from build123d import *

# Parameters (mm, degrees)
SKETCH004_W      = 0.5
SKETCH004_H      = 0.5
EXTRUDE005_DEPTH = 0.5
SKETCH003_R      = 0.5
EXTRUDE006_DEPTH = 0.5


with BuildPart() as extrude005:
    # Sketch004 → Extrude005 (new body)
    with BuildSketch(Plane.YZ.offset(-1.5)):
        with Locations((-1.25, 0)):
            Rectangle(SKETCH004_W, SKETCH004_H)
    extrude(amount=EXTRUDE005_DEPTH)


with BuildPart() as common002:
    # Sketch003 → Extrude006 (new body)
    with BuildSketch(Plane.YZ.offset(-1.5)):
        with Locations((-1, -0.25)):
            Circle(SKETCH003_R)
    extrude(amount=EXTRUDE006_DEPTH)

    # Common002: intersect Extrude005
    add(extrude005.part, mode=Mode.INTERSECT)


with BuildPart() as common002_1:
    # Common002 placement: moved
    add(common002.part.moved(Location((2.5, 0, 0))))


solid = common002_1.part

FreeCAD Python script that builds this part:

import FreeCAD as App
import Part
import Sketcher


def add_polygon(sketch, points):
    """Adds a closed chain of lines whose ends are joined by coincident constraints."""
    first, n = sketch.GeometryCount, len(points)
    for a, b in zip(points, points[1:] + points[:1]):
        sketch.addGeometry(Part.LineSegment(App.Vector(*a, 0), App.Vector(*b, 0)), False)
    for i in range(n):
        sketch.addConstraint(Sketcher.Constraint("Coincident", first + i, 2, first + (i + 1) % n, 1))

doc = App.newDocument("Part")
body = doc.addObject("PartDesign::Body", "Body")

# Sketch on YZ plane
sketch1 = doc.addObject("Sketcher::SketchObject", "Sketch")
body.addObject(sketch1)
sketch1.AttachmentSupport = (doc.YZ_Plane, [""])
sketch1.MapMode = "FlatFace"
sketch1.AttachmentOffset = App.Placement(App.Vector(0, 0, -1.5), App.Rotation())
add_polygon(sketch1, [(-1.5, 0.25), (-1.5, -0.25), (-1, -0.25), (-1, 0.25)])  # lines 0-3
sketch1.addConstraint(Sketcher.Constraint("Vertical", 0))
sketch1.addConstraint(Sketcher.Constraint("Horizontal", 1))
sketch1.addConstraint(Sketcher.Constraint("Vertical", 2))
sketch1.addConstraint(Sketcher.Constraint("Horizontal", 3))
sketch1.addConstraint(Sketcher.Constraint("Equal", 3, 0))
sketch1.addConstraint(Sketcher.Constraint("DistanceX", 1, 1, 1, 2, 0.5))
sketch1.addConstraint(Sketcher.Constraint("DistanceX", 1, 2, -1, 1, 1.0))
sketch1.addConstraint(Sketcher.Constraint("DistanceY", 0, 2, -1, 1, 0.25))
pad1 = doc.addObject("PartDesign::Pad", "Pad")
body.addObject(pad1)
pad1.Profile = sketch1
pad1.Length = 0.5
body2 = doc.addObject("PartDesign::Body", "Body001")

# Sketch on YZ plane
sketch2 = doc.addObject("Sketcher::SketchObject", "Sketch001")
body2.addObject(sketch2)
sketch2.AttachmentSupport = (doc.getObject("YZ_Plane001"), [""])
sketch2.MapMode = "FlatFace"
sketch2.AttachmentOffset = App.Placement(App.Vector(0, 0, -1.5), App.Rotation())
sketch2.addGeometry(Part.Circle(App.Vector(-1, -0.25, 0), App.Vector(0, 0, 1), 0.5), False)
sketch2.addConstraint(Sketcher.Constraint("Diameter", 0, 1.0))
sketch2.addConstraint(Sketcher.Constraint("DistanceX", 0, 3, -1, 1, 1.0))
sketch2.addConstraint(Sketcher.Constraint("DistanceY", 0, 3, -1, 1, 0.25))
pad2 = doc.addObject("PartDesign::Pad", "Pad001")
body2.addObject(pad2)
pad2.Profile = sketch2
pad2.Length = 0.5
doc.recompute()

boolean = doc.addObject("PartDesign::Boolean", "Boolean")
body2.addObject(boolean)
boolean.Type = "Common"
boolean.addObjects([body])
body3 = doc.addObject("PartDesign::Body", "Body002")
doc.recompute()

body2.Placement = App.Placement(App.Vector(2.5, 0, 0), App.Rotation(App.Vector(0, 0, 1), 0))
boolean2 = doc.addObject("PartDesign::Boolean", "Boolean001")
body3.addObject(boolean2)
boolean2.Type = "Fuse"
boolean2.addObjects([body2])

doc.recompute()
